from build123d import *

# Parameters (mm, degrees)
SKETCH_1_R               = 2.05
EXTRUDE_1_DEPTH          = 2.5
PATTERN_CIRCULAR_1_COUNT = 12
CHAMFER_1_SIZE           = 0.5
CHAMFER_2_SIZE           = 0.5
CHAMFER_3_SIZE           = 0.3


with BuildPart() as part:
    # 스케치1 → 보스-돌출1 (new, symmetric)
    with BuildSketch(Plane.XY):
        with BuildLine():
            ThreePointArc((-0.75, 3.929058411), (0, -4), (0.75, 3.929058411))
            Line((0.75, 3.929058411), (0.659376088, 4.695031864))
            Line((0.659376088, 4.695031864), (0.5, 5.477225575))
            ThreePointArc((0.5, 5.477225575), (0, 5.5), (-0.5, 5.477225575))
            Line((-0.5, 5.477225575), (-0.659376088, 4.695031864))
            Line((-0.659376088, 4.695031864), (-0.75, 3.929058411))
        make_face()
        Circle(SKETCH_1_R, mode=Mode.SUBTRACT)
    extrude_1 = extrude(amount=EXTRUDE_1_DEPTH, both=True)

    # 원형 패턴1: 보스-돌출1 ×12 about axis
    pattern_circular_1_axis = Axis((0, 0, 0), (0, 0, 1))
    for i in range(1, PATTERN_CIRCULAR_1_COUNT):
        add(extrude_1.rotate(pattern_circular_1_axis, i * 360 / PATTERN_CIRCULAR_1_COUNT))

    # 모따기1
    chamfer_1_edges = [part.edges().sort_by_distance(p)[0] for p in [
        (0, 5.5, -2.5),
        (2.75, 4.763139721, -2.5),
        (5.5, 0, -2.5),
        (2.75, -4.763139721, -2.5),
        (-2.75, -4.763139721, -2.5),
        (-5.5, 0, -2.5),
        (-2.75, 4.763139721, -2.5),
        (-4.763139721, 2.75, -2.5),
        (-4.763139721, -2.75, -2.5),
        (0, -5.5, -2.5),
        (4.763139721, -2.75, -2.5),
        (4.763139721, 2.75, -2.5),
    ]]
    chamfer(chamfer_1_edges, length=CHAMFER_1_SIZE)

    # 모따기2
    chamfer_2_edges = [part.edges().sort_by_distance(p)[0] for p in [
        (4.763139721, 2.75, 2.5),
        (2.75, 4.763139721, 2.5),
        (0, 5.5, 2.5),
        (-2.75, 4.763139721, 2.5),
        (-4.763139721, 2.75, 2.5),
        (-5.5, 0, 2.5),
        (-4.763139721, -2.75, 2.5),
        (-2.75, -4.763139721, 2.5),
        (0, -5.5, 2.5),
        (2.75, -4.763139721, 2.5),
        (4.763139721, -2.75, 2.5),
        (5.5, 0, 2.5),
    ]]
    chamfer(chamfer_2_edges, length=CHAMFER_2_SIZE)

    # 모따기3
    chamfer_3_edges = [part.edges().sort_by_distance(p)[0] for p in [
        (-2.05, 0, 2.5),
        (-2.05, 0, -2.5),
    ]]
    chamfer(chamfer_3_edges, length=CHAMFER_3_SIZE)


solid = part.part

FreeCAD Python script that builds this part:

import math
import FreeCAD as App
import Part
import Sketcher
from FreeCAD import Vector
Q = App.Units.Quantity


def edges_at(feature, points):
    """Names of the edges that pass closest to the given points."""
    edges = feature.Shape.Edges
    near = lambda p: min(range(len(edges)), key=lambda i: edges[i].distToShape(Part.Vertex(*p))[0])
    return sorted({f"Edge{near(p) + 1}" for p in points})

doc = App.newDocument("Part")
body = doc.addObject("PartDesign::Body", "Body")

# Sketch on XY plane
sketch1 = body.newObject("Sketcher::SketchObject", "Sketch")
sketch1.AttachmentSupport = (doc.getObject("XY_Plane"), [""])
sketch1.MapMode = "FlatFace"
sketch1.addGeometry(Part.ArcOfCircle(Part.Circle(Vector(0, 0, 0), Vector(0, 0, 1), 4), math.radians(100.806923), math.radians(439.193077)), False)
sketch1.addGeometry(Part.LineSegment(Vector(0.75, 3.929058, 0), Vector(0.659376, 4.695032, 0)), False)
sketch1.addGeometry(Part.LineSegment(Vector(0.659376, 4.695032, 0), Vector(0.5, 5.477226, 0)), False)
sketch1.addGeometry(Part.ArcOfCircle(Part.Circle(Vector(0, 0, 0), Vector(0, 0, 1), 5.5), math.radians(84.784091), math.radians(95.215909)), False)
sketch1.addGeometry(Part.LineSegment(Vector(-0.5, 5.477226, 0), Vector(-0.659376, 4.695032, 0)), False)
sketch1.addGeometry(Part.LineSegment(Vector(-0.659376, 4.695032, 0), Vector(-0.75, 3.929058, 0)), False)
sketch1.addGeometry(Part.Circle(Vector(0, 0, 0), Vector(0, 0, 1), 2.05), False)
sketch1.addConstraint(Sketcher.Constraint("Coincident", 0, 2, 1, 1))
sketch1.addConstraint(Sketcher.Constraint("Coincident", 1, 2, 2, 1))
sketch1.addConstraint(Sketcher.Constraint("Coincident", 2, 2, 3, 1))
sketch1.addConstraint(Sketcher.Constraint("Coincident", 3, 2, 4, 1))
sketch1.addConstraint(Sketcher.Constraint("Coincident", 4, 2, 5, 1))
sketch1.addConstraint(Sketcher.Constraint("Coincident", 5, 2, 0, 1))
sketch1.addConstraint(Sketcher.Constraint("Coincident", 0, 3, -1, 1))
sketch1.addConstraint(Sketcher.Constraint("Coincident", 3, 3, -1, 1))
sketch1.addConstraint(Sketcher.Constraint("Coincident", 6, 3, -1, 1))
sketch1.addConstraint(Sketcher.Constraint("Symmetric", 1, 2, 4, 2, -2))
sketch1.addConstraint(Sketcher.Constraint("Horizontal", 2, 2, 3, 2))
sketch1.addConstraint(Sketcher.Constraint("Horizontal", 0, 2, 5, 2))
sketch1.addConstraint(Sketcher.Constraint("Radius", 0, Q("4 mm")))
sketch1.addConstraint(Sketcher.Constraint("Diameter", 6, Q("4.1 mm")))
sketch1.addConstraint(Sketcher.Constraint("Radius", 3, Q("5.5 mm")))
sketch1.addConstraint(Sketcher.Constraint("DistanceX", 3, 2, 2, 2, Q("1 mm")))
sketch1.addConstraint(Sketcher.Constraint("DistanceX", 5, 2, 0, 2, Q("1.5 mm")))
sketch1.addConstraint(Sketcher.Constraint("DistanceY", -1, 1, 1, 2, Q("4.695032 mm")))
sketch1.addConstraint(Sketcher.Constraint("Distance", 1, Q("0.771316 mm")))
pad1 = body.newObject("PartDesign::Pad", "Pad")
pad1.Profile = sketch1
pad1.Length = 5
pad1.Midplane = True
doc.recompute()

polarpattern = body.newObject("PartDesign::PolarPattern", "PolarPattern")
polarpattern.Originals = [pad1]
polarpattern.Axis = (doc.getObject("Z_Axis"), [""])
polarpattern.Angle = 360
polarpattern.Occurrences = 12
body.Tip = polarpattern
doc.recompute()

chamfer = body.newObject("PartDesign::Chamfer", "Chamfer")
chamfer.Base = (polarpattern, edges_at(polarpattern, [
    (0, 5.5, -2.5),
    (2.75, 4.763, -2.5),
    (5.5, 0, -2.5),
    (2.75, -4.763, -2.5),
    (-2.75, -4.763, -2.5),
    (-5.5, 0, -2.5),
    (-2.75, 4.763, -2.5),
    (-4.763, 2.75, -2.5),
    (-4.763, -2.75, -2.5),
    (0, -5.5, -2.5),
    (4.763, -2.75, -2.5),
    (4.763, 2.75, -2.5),
]))
chamfer.Size = 0.5
doc.recompute()

chamfer2 = body.newObject("PartDesign::Chamfer", "Chamfer001")
chamfer2.Base = (chamfer, edges_at(chamfer, [
    (4.763, 2.75, 2.5),
    (2.75, 4.763, 2.5),
    (0, 5.5, 2.5),
    (-2.75, 4.763, 2.5),
    (-4.763, 2.75, 2.5),
    (-5.5, 0, 2.5),
    (-4.763, -2.75, 2.5),
    (-2.75, -4.763, 2.5),
    (0, -5.5, 2.5),
    (2.75, -4.763, 2.5),
    (4.763, -2.75, 2.5),
    (5.5, 0, 2.5),
]))
chamfer2.Size = 0.5
doc.recompute()

chamfer3 = body.newObject("PartDesign::Chamfer", "Chamfer002")
chamfer3.Base = (chamfer2, edges_at(chamfer2, [(-2.05, 0, 2.5), (-2.05, 0, -2.5)]))
chamfer3.Size = 0.3

doc.recompute()
